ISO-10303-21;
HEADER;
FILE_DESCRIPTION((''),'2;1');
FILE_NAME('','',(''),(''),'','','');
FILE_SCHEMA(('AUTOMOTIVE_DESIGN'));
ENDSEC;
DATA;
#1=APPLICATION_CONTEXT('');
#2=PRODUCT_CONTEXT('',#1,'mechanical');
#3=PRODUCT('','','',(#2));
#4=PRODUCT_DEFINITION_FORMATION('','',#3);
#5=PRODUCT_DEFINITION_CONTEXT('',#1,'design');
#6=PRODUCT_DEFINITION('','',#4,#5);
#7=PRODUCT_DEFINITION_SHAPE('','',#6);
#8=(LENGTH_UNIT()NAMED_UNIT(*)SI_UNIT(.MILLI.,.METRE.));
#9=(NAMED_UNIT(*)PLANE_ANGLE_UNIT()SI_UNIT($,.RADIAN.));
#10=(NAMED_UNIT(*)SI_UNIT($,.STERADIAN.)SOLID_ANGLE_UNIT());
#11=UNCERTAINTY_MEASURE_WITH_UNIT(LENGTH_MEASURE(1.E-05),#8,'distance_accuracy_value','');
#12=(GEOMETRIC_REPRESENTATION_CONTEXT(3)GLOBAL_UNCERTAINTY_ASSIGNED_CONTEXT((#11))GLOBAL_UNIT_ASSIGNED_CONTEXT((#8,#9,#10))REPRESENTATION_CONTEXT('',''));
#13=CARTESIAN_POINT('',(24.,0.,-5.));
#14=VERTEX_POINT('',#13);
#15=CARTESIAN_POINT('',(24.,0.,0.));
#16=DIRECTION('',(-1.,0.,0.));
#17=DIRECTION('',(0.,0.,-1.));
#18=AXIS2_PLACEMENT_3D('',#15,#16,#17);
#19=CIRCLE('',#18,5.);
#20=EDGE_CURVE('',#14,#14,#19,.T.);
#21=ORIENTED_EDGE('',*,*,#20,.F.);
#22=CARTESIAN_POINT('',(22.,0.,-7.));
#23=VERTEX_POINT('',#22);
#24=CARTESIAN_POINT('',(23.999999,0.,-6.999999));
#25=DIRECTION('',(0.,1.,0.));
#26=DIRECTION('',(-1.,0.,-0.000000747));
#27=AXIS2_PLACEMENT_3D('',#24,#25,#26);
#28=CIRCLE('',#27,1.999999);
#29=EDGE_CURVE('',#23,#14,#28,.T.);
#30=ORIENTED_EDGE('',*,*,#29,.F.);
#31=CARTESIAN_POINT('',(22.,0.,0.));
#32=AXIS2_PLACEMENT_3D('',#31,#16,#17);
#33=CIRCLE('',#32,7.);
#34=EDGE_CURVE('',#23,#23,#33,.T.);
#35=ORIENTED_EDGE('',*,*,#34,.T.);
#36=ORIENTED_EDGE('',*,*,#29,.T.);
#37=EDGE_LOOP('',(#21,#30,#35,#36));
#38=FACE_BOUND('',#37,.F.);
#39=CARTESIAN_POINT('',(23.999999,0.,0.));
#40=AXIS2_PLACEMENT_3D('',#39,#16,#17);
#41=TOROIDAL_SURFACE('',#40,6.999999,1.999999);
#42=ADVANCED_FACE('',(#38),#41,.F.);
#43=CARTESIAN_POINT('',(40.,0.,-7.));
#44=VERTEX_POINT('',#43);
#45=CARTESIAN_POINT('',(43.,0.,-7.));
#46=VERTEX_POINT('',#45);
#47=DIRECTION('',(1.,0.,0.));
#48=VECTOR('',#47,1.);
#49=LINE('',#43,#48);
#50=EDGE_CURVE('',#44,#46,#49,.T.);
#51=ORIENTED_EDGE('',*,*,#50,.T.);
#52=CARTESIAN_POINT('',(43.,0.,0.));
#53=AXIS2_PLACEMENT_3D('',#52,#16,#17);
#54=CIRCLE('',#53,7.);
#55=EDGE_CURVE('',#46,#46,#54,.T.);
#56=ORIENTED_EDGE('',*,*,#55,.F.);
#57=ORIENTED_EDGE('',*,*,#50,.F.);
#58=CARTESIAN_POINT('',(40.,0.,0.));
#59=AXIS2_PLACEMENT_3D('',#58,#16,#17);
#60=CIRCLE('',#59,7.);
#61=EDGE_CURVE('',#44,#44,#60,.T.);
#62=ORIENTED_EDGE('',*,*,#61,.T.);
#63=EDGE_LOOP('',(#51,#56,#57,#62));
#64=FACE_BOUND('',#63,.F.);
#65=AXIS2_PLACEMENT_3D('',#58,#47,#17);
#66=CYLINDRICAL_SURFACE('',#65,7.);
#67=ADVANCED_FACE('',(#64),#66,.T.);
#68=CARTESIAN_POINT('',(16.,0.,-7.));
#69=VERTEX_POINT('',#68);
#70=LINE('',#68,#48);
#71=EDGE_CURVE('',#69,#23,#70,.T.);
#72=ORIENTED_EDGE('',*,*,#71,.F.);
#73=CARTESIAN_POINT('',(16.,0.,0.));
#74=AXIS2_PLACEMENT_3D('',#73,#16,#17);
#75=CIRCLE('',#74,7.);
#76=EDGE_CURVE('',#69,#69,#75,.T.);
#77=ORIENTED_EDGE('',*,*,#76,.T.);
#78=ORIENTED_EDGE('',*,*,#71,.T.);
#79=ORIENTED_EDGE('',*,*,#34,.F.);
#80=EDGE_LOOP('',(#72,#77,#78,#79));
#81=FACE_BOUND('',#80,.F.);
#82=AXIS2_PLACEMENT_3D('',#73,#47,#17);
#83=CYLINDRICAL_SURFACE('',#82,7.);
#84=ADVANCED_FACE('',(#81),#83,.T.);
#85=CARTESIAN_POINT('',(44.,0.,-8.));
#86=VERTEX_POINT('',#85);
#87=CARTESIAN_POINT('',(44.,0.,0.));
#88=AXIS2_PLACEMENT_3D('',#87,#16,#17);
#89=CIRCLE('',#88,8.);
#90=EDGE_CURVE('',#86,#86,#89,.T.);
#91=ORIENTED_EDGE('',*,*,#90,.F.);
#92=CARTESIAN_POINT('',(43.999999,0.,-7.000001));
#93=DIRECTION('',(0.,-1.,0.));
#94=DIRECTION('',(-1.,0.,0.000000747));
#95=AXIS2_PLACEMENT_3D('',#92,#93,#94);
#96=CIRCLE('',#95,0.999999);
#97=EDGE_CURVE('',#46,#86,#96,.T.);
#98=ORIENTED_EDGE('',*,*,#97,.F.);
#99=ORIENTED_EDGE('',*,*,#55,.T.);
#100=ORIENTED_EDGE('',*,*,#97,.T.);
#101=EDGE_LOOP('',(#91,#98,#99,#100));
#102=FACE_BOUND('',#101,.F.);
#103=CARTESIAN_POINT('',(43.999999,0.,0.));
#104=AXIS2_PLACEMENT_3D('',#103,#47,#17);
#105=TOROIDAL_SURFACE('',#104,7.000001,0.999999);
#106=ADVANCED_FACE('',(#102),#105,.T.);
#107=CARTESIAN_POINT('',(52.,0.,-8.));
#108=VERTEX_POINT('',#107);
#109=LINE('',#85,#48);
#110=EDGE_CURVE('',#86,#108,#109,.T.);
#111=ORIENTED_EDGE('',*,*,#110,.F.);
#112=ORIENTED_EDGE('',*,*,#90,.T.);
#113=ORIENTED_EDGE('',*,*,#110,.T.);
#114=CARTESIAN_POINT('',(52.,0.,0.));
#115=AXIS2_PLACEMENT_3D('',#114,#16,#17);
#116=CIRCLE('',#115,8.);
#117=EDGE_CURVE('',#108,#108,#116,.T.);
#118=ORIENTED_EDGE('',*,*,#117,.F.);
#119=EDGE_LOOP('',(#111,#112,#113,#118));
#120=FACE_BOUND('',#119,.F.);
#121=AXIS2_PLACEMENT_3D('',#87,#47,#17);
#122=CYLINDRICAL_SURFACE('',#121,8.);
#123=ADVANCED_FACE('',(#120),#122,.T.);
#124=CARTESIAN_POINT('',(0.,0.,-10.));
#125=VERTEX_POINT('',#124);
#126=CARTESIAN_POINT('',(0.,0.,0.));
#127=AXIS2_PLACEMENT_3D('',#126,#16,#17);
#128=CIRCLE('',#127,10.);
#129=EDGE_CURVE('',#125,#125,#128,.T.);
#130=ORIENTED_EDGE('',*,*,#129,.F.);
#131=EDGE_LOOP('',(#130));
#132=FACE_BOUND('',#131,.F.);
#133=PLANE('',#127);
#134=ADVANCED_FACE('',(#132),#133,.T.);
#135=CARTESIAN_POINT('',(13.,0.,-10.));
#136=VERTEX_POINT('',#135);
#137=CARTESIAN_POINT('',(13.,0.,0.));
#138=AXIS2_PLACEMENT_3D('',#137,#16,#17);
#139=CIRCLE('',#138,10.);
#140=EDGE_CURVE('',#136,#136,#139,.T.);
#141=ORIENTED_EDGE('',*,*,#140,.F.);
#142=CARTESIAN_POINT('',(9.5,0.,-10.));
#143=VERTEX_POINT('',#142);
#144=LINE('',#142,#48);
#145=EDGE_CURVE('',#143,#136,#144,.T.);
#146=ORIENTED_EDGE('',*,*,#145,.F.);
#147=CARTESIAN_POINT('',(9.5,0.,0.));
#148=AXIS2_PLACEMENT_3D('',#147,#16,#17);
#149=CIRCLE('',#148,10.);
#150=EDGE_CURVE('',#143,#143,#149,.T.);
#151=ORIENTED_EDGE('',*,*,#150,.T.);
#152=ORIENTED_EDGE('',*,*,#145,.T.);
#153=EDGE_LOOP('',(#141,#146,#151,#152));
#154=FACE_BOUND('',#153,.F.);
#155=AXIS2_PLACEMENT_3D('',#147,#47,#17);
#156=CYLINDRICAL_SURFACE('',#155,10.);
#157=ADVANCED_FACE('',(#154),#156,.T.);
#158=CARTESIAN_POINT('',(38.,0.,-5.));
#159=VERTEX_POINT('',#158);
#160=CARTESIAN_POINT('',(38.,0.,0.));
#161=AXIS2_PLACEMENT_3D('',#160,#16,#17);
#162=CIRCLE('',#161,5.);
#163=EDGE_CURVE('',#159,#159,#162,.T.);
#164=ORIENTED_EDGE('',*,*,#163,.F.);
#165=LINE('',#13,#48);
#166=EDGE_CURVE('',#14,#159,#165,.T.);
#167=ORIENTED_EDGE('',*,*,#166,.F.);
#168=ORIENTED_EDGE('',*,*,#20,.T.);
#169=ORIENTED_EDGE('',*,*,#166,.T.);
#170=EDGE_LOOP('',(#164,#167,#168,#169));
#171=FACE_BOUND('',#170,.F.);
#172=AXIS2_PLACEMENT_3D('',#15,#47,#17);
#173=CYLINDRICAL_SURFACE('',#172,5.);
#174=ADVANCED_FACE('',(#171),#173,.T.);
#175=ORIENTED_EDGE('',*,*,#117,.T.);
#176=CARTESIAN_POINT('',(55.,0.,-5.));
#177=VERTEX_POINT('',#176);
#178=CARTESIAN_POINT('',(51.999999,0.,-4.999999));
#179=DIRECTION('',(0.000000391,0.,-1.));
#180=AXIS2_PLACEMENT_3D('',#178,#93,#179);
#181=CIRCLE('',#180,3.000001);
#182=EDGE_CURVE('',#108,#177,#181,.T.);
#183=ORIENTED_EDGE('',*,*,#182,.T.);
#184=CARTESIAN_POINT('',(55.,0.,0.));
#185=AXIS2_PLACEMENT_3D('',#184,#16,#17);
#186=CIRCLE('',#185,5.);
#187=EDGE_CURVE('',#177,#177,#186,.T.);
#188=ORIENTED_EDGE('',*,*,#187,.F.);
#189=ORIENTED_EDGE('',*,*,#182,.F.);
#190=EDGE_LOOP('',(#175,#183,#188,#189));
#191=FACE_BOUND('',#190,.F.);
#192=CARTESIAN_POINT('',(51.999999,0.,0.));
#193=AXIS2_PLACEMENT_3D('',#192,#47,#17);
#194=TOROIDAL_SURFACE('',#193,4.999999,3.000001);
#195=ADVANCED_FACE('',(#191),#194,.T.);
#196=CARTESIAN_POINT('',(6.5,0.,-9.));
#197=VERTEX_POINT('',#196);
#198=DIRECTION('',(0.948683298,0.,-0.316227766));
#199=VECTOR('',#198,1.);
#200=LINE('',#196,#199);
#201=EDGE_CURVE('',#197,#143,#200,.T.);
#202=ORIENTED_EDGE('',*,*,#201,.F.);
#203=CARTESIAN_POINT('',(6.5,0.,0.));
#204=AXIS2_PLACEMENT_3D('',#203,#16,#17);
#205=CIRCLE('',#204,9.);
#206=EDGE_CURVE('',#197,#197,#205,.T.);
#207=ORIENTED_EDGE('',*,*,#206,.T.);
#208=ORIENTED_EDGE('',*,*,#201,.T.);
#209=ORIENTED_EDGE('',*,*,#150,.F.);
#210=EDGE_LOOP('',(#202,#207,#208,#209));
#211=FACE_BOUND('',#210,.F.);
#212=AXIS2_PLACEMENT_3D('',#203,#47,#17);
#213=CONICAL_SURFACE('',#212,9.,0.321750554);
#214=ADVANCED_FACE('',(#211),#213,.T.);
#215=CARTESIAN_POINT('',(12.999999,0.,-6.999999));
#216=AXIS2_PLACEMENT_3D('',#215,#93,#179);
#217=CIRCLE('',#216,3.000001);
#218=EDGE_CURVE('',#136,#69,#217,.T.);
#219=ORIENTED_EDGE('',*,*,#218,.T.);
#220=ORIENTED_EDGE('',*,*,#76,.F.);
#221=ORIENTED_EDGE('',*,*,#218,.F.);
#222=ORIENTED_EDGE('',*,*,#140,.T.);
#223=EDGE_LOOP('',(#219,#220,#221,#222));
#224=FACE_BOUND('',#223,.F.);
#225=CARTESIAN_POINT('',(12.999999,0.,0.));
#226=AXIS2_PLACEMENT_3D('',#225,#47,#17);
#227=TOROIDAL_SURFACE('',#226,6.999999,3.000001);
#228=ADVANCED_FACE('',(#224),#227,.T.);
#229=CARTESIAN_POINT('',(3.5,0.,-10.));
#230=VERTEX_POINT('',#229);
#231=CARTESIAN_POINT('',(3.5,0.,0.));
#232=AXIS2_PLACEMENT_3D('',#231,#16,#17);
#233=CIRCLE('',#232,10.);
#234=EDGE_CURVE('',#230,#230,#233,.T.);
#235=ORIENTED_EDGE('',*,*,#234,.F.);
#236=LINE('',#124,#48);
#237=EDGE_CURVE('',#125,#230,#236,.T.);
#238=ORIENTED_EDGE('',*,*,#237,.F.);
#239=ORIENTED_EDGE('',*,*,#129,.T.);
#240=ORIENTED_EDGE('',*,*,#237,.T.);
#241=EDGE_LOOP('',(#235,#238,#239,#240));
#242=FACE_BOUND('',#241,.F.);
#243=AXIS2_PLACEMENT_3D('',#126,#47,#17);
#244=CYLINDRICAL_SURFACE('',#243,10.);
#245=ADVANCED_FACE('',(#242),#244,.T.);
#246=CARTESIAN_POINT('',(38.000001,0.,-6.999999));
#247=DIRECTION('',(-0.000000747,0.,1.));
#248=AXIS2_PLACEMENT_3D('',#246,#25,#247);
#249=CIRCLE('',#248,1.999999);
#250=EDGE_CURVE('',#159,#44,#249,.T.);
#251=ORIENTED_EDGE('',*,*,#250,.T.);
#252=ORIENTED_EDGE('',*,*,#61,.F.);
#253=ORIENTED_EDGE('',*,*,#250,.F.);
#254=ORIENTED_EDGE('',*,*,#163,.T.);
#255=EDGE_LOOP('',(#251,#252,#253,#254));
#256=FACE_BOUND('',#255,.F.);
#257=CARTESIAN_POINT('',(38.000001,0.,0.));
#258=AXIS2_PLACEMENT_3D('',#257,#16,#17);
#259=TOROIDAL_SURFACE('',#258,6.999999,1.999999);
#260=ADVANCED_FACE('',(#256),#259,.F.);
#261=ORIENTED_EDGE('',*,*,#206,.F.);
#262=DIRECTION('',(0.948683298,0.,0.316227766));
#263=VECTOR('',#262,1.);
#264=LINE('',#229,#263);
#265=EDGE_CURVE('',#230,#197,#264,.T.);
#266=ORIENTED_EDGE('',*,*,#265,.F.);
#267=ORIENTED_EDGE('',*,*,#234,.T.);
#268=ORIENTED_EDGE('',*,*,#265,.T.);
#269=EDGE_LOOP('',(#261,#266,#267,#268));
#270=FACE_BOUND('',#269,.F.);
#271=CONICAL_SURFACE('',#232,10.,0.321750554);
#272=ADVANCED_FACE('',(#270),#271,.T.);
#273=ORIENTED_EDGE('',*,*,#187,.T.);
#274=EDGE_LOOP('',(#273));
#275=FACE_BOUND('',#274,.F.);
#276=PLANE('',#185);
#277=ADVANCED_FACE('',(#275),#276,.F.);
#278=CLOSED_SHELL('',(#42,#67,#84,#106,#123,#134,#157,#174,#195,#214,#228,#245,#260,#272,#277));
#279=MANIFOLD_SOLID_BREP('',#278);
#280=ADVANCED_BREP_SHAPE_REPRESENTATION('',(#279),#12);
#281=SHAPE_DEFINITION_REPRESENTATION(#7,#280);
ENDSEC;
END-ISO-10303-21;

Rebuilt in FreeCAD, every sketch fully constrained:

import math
import FreeCAD as App
import Part
import Sketcher

doc = App.newDocument("Part")
body = doc.addObject("PartDesign::Body", "Body")

sketch1 = body.newObject("Sketcher::SketchObject", "Sketch")
sketch1.AttachmentSupport = (doc.getObject("XZ_Plane"), [""])
sketch1.MapMode = "FlatFace"
sketch1.addGeometry([
    Part.LineSegment(App.Vector(55, 0, 0), App.Vector(0, 0, 0)),
    Part.LineSegment(App.Vector(0, 0, 0), App.Vector(0, -10, 0)),
    Part.LineSegment(App.Vector(0, -10, 0), App.Vector(3.5, -10, 0)),
    Part.LineSegment(App.Vector(3.5, -10, 0), App.Vector(6.5, -9, 0)),
    Part.LineSegment(App.Vector(6.5, -9, 0), App.Vector(9.5, -10, 0)),
    Part.LineSegment(App.Vector(9.5, -10, 0), App.Vector(13, -10, 0)),
    Part.ArcOfCircle(Part.Circle(App.Vector(12.999999, -6.999999, 0), App.Vector(0, 0, 1), 3.000001), math.radians(-89.999978), math.radians(-0.000022)),
    Part.LineSegment(App.Vector(16, -7, 0), App.Vector(22, -7, 0)),
    Part.ArcOfCircle(Part.Circle(App.Vector(23.999999, -6.999999, 0), App.Vector(0, 0, 1), 1.999999), math.radians(89.999957), math.radians(180.000043)),
    Part.LineSegment(App.Vector(24, -5, 0), App.Vector(38, -5, 0)),
    Part.ArcOfCircle(Part.Circle(App.Vector(38.000001, -6.999999, 0), App.Vector(0, 0, 1), 1.999999), math.radians(-0.000043), math.radians(90.000043)),
    Part.LineSegment(App.Vector(40, -7, 0), App.Vector(43, -7, 0)),
    Part.ArcOfCircle(Part.Circle(App.Vector(43.999999, -7.000001, 0), App.Vector(0, 0, 1), 0.999999), math.radians(179.999957), math.radians(270.000043)),
    Part.LineSegment(App.Vector(44, -8, 0), App.Vector(52, -8, 0)),
    Part.ArcOfCircle(Part.Circle(App.Vector(51.999999, -4.999999, 0), App.Vector(0, 0, 1), 3.000001), math.radians(-89.999978), math.radians(-0.000022)),
    Part.LineSegment(App.Vector(55, -5, 0), App.Vector(55, 0, 0)),
], False)
sketch1.addConstraint([
    Sketcher.Constraint("Coincident", 0, 2, 1, 1),
    Sketcher.Constraint("Coincident", 1, 2, 2, 1),
    Sketcher.Constraint("Coincident", 2, 2, 3, 1),
    Sketcher.Constraint("Coincident", 3, 2, 4, 1),
    Sketcher.Constraint("Coincident", 4, 2, 5, 1),
    Sketcher.Constraint("Tangent", 5, 2, 6, 1),
    Sketcher.Constraint("Coincident", 6, 2, 7, 1),
    Sketcher.Constraint("Coincident", 7, 2, 8, 2),
    Sketcher.Constraint("Tangent", 8, 1, 9, 1),
    Sketcher.Constraint("Tangent", 9, 2, 10, 2),
    Sketcher.Constraint("Coincident", 10, 1, 11, 1),
    Sketcher.Constraint("Coincident", 11, 2, 12, 1),
    Sketcher.Constraint("Tangent", 12, 2, 13, 1),
    Sketcher.Constraint("Tangent", 13, 2, 14, 1),
    Sketcher.Constraint("Tangent", 14, 2, 15, 1),
    Sketcher.Constraint("Coincident", 15, 2, 0, 1),
    Sketcher.Constraint("Horizontal", 0),
    Sketcher.Constraint("Vertical", 1),
    Sketcher.Constraint("Horizontal", 2),
    Sketcher.Constraint("Horizontal", 5),
    Sketcher.Constraint("Horizontal", 7),
    Sketcher.Constraint("Horizontal", 9),
    Sketcher.Constraint("Horizontal", 11),
    Sketcher.Constraint("Horizontal", 13),
    Sketcher.Constraint("Vertical", 15),
    Sketcher.Constraint("Coincident", 0, 2, -1, 1),
    Sketcher.Constraint("Equal", 8, 10),
    Sketcher.Constraint("Equal", 6, 14),
    Sketcher.Constraint("Horizontal", 6, 3, 8, 3),
    Sketcher.Constraint("Horizontal", 6, 3, 12, 3),
    Sketcher.Constraint("Horizontal", 2, 2, 4, 2),
    Sketcher.Constraint("Horizontal", 12, 3, 6, 2),
    Sketcher.Constraint("Horizontal", 14, 3, 8, 1),
    Sketcher.Constraint("Horizontal", 7, 2, 10, 1),
    Sketcher.Constraint("Equal", 2, 5),
    Sketcher.Constraint("Equal", 3, 4),
    Sketcher.Constraint("Radius", 6, 3.000001),
    Sketcher.Constraint("Radius", 8, 1.999999),
    Sketcher.Constraint("DistanceX", 0, 2, 0, 1, 55.0),
    Sketcher.Constraint("DistanceX", 7, 1, 7, 2, 6.0),
    Sketcher.Constraint("DistanceX", 9, 1, 9, 2, 14.0),
    Sketcher.Constraint("DistanceX", 11, 1, 11, 2, 3.0),
    Sketcher.Constraint("DistanceX", 13, 1, 13, 2, 8.0),
    Sketcher.Constraint("DistanceY", 1, 2, 1, 1, 10.0),
    Sketcher.Constraint("DistanceX", 2, 1, 2, 2, 3.5),
    Sketcher.Constraint("DistanceY", 3, 2, -1, 1, 9.0),
])
revolution = body.newObject("PartDesign::Revolution", "Revolution")
revolution.Profile = sketch1
revolution.ReferenceAxis = (sketch1, ["H_Axis"])
revolution.Angle = 360

doc.recompute()
